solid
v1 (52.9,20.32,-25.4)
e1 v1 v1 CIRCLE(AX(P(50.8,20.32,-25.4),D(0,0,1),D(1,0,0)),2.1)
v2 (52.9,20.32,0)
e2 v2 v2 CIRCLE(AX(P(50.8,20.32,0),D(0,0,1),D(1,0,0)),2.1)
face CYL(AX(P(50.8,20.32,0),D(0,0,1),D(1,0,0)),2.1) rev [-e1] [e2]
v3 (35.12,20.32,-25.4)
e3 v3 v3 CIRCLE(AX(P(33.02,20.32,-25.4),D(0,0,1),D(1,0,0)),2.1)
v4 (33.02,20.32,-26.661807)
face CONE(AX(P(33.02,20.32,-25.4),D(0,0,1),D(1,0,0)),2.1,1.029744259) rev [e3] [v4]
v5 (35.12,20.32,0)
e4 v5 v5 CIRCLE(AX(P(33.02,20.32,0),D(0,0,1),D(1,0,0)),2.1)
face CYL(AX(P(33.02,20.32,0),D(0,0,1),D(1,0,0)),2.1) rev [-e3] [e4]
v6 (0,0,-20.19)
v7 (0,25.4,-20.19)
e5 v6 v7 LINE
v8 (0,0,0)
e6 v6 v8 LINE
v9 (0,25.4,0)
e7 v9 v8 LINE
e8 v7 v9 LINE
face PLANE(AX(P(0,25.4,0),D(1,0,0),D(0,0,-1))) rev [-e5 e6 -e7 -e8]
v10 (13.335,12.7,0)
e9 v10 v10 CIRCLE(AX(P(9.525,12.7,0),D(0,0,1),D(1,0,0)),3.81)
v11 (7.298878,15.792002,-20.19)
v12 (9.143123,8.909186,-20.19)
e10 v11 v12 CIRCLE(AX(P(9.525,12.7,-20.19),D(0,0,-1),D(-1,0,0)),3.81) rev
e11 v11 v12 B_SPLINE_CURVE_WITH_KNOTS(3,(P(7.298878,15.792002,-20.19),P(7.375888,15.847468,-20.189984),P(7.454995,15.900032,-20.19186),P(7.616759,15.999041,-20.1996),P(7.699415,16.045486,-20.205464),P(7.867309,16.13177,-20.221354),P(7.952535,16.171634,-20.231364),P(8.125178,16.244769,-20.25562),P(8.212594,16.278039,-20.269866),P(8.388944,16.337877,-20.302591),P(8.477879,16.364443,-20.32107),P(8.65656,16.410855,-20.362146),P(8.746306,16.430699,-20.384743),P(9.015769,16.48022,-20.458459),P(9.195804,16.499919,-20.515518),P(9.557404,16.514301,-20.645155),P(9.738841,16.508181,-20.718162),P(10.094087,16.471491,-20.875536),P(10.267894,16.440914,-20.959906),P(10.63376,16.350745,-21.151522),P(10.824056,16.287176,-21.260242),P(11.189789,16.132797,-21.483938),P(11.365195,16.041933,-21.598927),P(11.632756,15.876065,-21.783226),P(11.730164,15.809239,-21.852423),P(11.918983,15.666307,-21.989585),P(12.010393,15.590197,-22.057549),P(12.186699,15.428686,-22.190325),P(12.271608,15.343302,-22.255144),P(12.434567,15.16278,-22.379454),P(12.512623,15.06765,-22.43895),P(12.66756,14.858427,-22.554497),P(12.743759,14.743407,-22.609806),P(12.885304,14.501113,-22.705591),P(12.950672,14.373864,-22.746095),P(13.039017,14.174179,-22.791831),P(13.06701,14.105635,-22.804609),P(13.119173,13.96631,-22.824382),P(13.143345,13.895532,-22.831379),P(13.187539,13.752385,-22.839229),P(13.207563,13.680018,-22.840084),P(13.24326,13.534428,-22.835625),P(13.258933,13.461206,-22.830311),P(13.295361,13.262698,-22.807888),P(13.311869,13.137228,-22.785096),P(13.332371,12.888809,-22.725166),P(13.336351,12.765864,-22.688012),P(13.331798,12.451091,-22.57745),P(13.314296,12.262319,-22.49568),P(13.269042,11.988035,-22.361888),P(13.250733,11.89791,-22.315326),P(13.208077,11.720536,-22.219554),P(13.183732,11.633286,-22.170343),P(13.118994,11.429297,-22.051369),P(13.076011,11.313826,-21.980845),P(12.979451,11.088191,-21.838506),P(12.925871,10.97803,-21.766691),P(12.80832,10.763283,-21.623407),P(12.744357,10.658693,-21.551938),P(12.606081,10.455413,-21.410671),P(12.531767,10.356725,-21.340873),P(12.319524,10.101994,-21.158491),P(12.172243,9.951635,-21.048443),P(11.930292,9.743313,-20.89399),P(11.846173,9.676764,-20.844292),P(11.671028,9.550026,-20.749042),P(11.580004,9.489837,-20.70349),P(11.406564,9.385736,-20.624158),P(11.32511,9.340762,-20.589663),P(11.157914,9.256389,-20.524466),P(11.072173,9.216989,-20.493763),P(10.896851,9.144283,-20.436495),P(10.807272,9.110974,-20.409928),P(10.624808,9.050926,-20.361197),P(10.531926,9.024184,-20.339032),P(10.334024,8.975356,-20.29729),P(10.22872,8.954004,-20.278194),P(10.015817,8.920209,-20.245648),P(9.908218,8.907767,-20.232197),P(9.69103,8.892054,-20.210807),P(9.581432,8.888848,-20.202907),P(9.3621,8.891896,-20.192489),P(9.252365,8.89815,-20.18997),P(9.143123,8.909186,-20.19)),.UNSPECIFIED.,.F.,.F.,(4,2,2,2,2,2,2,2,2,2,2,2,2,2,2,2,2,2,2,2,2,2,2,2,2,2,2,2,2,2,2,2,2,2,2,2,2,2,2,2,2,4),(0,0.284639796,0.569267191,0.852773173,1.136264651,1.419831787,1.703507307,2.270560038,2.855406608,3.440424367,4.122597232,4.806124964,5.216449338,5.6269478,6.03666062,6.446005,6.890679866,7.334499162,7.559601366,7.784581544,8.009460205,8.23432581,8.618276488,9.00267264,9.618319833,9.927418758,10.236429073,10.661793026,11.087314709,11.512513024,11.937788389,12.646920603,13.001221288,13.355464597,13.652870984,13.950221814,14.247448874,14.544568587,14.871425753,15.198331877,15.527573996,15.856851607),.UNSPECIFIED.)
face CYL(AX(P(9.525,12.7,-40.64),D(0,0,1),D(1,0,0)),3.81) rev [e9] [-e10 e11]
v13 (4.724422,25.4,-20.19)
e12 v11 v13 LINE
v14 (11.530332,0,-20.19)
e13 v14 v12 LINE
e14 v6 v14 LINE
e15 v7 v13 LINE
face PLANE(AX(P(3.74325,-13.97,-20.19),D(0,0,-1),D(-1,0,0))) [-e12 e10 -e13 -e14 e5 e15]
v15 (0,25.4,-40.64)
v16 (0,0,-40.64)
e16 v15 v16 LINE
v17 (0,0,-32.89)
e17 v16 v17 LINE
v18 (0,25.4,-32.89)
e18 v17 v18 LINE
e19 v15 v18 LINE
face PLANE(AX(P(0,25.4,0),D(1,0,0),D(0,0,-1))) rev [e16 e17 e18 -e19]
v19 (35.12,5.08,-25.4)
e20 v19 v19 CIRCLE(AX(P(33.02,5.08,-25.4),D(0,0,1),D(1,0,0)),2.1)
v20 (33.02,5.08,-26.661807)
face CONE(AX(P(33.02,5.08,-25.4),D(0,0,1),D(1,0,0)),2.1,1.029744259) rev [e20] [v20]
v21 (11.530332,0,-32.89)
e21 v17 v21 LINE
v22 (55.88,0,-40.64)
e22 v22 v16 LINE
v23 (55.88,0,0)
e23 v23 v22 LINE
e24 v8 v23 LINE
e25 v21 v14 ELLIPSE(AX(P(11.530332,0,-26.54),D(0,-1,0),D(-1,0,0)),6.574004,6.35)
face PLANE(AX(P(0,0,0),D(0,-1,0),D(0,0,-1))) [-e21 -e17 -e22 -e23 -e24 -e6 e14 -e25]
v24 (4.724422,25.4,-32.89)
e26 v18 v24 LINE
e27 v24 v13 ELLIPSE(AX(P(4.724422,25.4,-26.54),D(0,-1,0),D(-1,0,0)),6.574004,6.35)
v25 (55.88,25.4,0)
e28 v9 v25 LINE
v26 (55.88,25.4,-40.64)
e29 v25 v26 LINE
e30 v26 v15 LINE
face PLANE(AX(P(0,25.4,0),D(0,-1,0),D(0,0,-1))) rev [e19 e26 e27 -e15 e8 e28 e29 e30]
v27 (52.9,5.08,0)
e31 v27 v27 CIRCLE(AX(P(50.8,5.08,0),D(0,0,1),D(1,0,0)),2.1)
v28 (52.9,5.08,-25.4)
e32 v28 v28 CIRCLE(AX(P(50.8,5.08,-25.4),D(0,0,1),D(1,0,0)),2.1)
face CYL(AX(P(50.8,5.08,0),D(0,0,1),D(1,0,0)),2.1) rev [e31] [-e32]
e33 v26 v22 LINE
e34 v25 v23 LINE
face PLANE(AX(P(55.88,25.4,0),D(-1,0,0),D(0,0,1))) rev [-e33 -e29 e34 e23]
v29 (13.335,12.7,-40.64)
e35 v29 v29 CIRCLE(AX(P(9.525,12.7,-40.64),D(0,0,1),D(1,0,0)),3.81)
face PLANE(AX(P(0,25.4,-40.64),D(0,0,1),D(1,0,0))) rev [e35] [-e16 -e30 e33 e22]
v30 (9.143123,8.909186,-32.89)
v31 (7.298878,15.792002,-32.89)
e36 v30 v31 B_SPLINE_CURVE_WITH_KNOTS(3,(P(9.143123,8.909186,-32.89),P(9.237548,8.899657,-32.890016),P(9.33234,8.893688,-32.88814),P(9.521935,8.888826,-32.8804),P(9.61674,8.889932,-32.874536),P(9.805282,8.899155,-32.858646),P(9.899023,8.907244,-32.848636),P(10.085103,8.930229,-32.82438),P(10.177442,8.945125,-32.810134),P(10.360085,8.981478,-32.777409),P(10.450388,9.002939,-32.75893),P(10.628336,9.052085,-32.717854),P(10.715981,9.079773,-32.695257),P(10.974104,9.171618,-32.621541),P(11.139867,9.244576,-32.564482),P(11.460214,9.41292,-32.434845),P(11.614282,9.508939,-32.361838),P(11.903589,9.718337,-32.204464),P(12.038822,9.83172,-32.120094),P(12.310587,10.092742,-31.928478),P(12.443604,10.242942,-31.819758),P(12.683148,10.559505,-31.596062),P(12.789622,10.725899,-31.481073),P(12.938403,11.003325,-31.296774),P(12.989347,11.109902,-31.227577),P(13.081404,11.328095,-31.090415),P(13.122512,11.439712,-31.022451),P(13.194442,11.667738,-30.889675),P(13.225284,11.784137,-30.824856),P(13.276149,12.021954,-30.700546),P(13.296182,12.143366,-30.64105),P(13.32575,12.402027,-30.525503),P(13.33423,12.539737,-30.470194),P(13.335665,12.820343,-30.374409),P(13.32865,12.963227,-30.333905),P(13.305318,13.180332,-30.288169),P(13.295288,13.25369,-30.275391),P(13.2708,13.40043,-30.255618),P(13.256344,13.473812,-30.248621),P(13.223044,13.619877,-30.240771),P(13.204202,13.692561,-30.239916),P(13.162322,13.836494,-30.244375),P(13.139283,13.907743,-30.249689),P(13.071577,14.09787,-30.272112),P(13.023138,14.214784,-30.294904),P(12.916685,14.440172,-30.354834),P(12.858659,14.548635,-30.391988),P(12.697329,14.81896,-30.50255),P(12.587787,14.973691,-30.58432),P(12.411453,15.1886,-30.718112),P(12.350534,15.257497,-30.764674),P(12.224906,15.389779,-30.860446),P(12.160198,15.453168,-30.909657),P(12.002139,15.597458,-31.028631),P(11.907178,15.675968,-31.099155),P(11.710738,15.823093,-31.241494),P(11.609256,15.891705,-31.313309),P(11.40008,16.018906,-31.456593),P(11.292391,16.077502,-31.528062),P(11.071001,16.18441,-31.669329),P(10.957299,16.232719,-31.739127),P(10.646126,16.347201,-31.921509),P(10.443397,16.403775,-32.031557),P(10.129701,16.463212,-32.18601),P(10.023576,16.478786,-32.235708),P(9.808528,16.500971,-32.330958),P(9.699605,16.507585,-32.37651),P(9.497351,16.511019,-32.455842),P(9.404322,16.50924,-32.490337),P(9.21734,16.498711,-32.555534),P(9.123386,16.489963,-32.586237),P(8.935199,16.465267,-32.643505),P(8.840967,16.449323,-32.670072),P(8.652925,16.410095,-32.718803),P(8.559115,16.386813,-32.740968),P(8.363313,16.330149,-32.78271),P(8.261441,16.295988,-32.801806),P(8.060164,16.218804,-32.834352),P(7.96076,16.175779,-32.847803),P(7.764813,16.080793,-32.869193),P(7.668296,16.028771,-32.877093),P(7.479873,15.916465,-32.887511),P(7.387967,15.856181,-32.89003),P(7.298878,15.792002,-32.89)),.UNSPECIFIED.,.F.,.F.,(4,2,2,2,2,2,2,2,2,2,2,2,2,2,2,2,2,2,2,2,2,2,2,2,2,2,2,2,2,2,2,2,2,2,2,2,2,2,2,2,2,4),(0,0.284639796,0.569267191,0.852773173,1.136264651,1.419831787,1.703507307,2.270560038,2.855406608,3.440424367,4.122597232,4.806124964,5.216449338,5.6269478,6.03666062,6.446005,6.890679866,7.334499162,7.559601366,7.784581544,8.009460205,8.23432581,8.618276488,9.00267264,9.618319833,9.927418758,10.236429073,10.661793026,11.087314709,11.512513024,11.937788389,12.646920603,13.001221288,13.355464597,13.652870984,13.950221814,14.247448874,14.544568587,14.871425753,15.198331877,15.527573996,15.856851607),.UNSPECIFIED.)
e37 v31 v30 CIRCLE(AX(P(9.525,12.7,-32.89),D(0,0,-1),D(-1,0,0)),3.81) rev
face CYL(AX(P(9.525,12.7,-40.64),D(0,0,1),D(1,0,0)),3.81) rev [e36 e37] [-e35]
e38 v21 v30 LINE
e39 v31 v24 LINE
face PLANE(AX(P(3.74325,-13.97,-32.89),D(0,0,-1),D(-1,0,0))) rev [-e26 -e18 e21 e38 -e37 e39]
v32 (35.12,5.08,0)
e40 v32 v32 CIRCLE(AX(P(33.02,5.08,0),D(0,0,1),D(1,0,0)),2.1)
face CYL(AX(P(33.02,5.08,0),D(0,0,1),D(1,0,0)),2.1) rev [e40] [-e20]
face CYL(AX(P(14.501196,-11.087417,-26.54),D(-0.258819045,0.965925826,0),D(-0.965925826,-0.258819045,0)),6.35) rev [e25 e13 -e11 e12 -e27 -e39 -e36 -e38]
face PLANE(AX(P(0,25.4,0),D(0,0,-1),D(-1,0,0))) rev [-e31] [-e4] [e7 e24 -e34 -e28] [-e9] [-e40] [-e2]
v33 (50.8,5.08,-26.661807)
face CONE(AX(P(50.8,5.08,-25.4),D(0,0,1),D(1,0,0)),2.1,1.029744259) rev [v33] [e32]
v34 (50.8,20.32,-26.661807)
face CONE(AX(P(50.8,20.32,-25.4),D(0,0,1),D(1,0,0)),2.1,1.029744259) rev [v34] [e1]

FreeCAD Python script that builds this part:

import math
import FreeCAD as App
import Part
import Sketcher
from FreeCAD import Vector
Q = App.Units.Quantity

doc = App.newDocument("Part")
body = doc.addObject("PartDesign::Body", "Body")

sketch1 = body.newObject("Sketcher::SketchObject", "Sketch")
sketch1.AttachmentSupport = (doc.getObject("XZ_Plane"), [""])
sketch1.MapMode = "FlatFace"
sketch1.addGeometry([
    Part.LineSegment(Vector(0, -40.64, 0), Vector(0, 0, 0)),
    Part.LineSegment(Vector(0, 0, 0), Vector(55.88, 0, 0)),
    Part.LineSegment(Vector(55.88, 0, 0), Vector(55.88, -40.64, 0)),
    Part.LineSegment(Vector(55.88, -40.64, 0), Vector(0, -40.64, 0)),
], False)
sketch1.addConstraint([
    Sketcher.Constraint("Coincident", 0, 2, 1, 1),
    Sketcher.Constraint("Coincident", 1, 2, 2, 1),
    Sketcher.Constraint("Coincident", 2, 2, 3, 1),
    Sketcher.Constraint("Coincident", 3, 2, 0, 1),
    Sketcher.Constraint("Vertical", 0),
    Sketcher.Constraint("Horizontal", 1),
    Sketcher.Constraint("Vertical", 2),
    Sketcher.Constraint("Horizontal", 3),
    Sketcher.Constraint("Coincident", 0, 2, -1, 1),
    Sketcher.Constraint("DistanceX", 1, 1, 1, 2, Q("2.2 in")),
    Sketcher.Constraint("DistanceY", 0, 1, 0, 2, Q("1.6 in")),
])
pad1 = body.newObject("PartDesign::Pad", "Pad")
pad1.Profile = sketch1
pad1.Length = Q("1 in")
pad1.Reversed = True

sketch2 = body.newObject("Sketcher::SketchObject", "Sketch001")
sketch2.AttachmentSupport = (doc.getObject("XY_Plane"), [""])
sketch2.MapMode = "FlatFace"
sketch2.addGeometry(Part.Circle(Vector(9.525, 12.7, 0), Vector(0, 0, 1), 3.81), False)
sketch2.addConstraint([
    Sketcher.Constraint("Diameter", 0, Q("0.3 in")),
    Sketcher.Constraint("DistanceY", -1, 1, 0, 3, Q("0.5 in")),
    Sketcher.Constraint("DistanceX", -1, 1, 0, 3, Q("0.375 in")),
])
pocket1 = body.newObject("PartDesign::Pocket", "Pocket")
pocket1.Profile = sketch2
pocket1.Type = "ThroughAll"

sketch3 = body.newObject("Sketcher::SketchObject", "Sketch002")
sketch3.AttachmentSupport = (doc.getObject("XY_Plane"), [""])
sketch3.MapMode = "FlatFace"
sketch3.addGeometry([
    Part.Circle(Vector(50.8, 5.08, 0), Vector(0, 0, 1), 2.1),
    Part.Circle(Vector(33.02, 5.08, 0), Vector(0, 0, 1), 2.1),
    Part.Circle(Vector(33.02, 20.32, 0), Vector(0, 0, 1), 2.1),
    Part.Circle(Vector(50.8, 20.32, 0), Vector(0, 0, 1), 2.1),
], False)
sketch3.addConstraint([
    Sketcher.Constraint("Equal", 0, 1),
    Sketcher.Constraint("Equal", 1, 2),
    Sketcher.Constraint("Equal", 2, 3),
    Sketcher.Constraint("Horizontal", 0, 3, 1, 3),
    Sketcher.Constraint("Horizontal", 2, 3, 3, 3),
    Sketcher.Constraint("Vertical", 1, 3, 2, 3),
    Sketcher.Constraint("Vertical", 0, 3, 3, 3),
    Sketcher.Constraint("DistanceX", -1, 1, 0, 3, Q("2 in")),
    Sketcher.Constraint("DistanceY", -1, 1, 0, 3, Q("0.2 in")),
    Sketcher.Constraint("DistanceX", -1, 1, 1, 3, Q("1.3 in")),
    Sketcher.Constraint("DistanceY", -1, 1, 2, 3, Q("0.8 in")),
    Sketcher.Constraint("Diameter", 0, 4.2),
])
doc.recompute()
hole = body.newObject("PartDesign::Hole", "Hole")
hole.Profile = sketch3
hole.ThreadType = "None"
hole.Diameter = 4.2
hole.DepthType = "Dimension"
hole.Depth = Q("1 in")
hole.DrillPoint = "Angled"
hole.DrillPointAngle = 118

sketch4 = body.newObject("Sketcher::SketchObject", "Sketch003")
sketch4.Placement = App.Placement(Vector(-2.536946, 9.468011, 0), App.Rotation(Vector(0.965925826, 0.258819045, 0), Vector(0, 0, -0.999999999), Vector(-0.258819045, 0.965925826, 0), "ZXY"))
sketch4.addGeometry([
    Part.LineSegment(Vector(11.137445, 32.89, 0), Vector(0, 32.89, 0)),
    Part.LineSegment(Vector(0, 32.89, 0), Vector(0, 20.19, 0)),
    Part.LineSegment(Vector(0, 20.19, 0), Vector(11.137445, 20.19, 0)),
    Part.ArcOfCircle(Part.Circle(Vector(11.137445, 26.54, 0), Vector(0, 0, 1), 6.35), math.radians(-90), math.radians(0)),
    Part.ArcOfCircle(Part.Circle(Vector(11.137445, 26.54, 0), Vector(0, 0, 1), 6.35), math.radians(0), math.radians(90)),
], False)
sketch4.addConstraint([
    Sketcher.Constraint("Coincident", 0, 2, 1, 1),
    Sketcher.Constraint("Coincident", 1, 2, 2, 1),
    Sketcher.Constraint("Tangent", 2, 2, 3, 1),
    Sketcher.Constraint("Tangent", 3, 2, 4, 1),
    Sketcher.Constraint("Tangent", 4, 2, 0, 1),
    Sketcher.Constraint("Horizontal", 0),
    Sketcher.Constraint("Vertical", 1),
    Sketcher.Constraint("Horizontal", 2),
    Sketcher.Constraint("Equal", 3, 4),
    Sketcher.Constraint("PointOnObject", 0, 2, -2),
    Sketcher.Constraint("Horizontal", 4, 3, 3, 2),
    Sketcher.Constraint("Radius", 3, Q("0.25 in")),
    Sketcher.Constraint("DistanceY", -1, 1, 3, 3, 26.54),
    Sketcher.Constraint("DistanceX", 0, 2, 0, 1, 11.137445),
])
pocket2 = body.newObject("PartDesign::Pocket", "Pocket001")
pocket2.Profile = sketch4
pocket2.Type = "ThroughAll"
pocket2.Midplane = True

doc.recompute()
